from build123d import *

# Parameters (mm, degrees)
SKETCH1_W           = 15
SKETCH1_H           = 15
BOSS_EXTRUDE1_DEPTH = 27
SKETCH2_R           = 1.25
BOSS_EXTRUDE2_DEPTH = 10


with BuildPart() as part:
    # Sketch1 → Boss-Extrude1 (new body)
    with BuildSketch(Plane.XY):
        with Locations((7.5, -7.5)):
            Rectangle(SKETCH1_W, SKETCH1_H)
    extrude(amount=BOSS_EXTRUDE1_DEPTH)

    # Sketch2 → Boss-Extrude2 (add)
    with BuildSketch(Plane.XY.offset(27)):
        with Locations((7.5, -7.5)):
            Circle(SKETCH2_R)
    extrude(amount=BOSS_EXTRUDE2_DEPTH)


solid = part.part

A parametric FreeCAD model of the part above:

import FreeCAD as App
import Part
import Sketcher

V = App.Vector

doc = App.newDocument("Part")
params = doc.addObject("Spreadsheet::Sheet", "Params")
for row, (alias, value) in enumerate([
    ("sketch1_width", "15 mm"),
    ("pad1_length", "27 mm"),
    ("sketch2_diameter", "2.5 mm"),
    ("pad2_length", "10 mm"),
], start=1):
    params.set(f"A{row}", alias)
    params.set(f"B{row}", "=" + value)
    params.setAlias(f"B{row}", alias)

body = doc.addObject("PartDesign::Body", "Body")

sketch1 = body.newObject("Sketcher::SketchObject", "Sketch")
sketch1.AttachmentSupport = (doc.getObject("XY_Plane"), [""])
sketch1.MapMode = "FlatFace"
sketch1.addGeometry([
    Part.LineSegment(V(0, 0, 0), V(0, -15, 0)),
    Part.LineSegment(V(0, -15, 0), V(15, -15, 0)),
    Part.LineSegment(V(15, -15, 0), V(15, 0, 0)),
    Part.LineSegment(V(15, 0, 0), V(0, 0, 0)),
], False)
sketch1.addConstraint([
    Sketcher.Constraint("Coincident", 0, 2, 1, 1),
    Sketcher.Constraint("Coincident", 1, 2, 2, 1),
    Sketcher.Constraint("Coincident", 2, 2, 3, 1),
    Sketcher.Constraint("Coincident", 3, 2, 0, 1),
    Sketcher.Constraint("Vertical", 0),
    Sketcher.Constraint("Horizontal", 1),
    Sketcher.Constraint("Vertical", 2),
    Sketcher.Constraint("Horizontal", 3),
    Sketcher.Constraint("Coincident", 3, 2, -1, 1),
    Sketcher.Constraint("Equal", 3, 0),
    Sketcher.Constraint("DistanceX", 1, 1, 1, 2, 15.0),
])
sketch1.setExpression("Constraints[10]", "Params.sketch1_width")
pad1 = body.newObject("PartDesign::Pad", "Pad")
pad1.Profile = sketch1
pad1.setExpression("Length", "Params.pad1_length")

sketch2 = body.newObject("Sketcher::SketchObject", "Sketch001")
sketch2.AttachmentSupport = (doc.getObject("XY_Plane"), [""])
sketch2.MapMode = "FlatFace"
sketch2.AttachmentOffset = App.Placement(V(0, 0, 27), App.Rotation())
sketch2.addGeometry(Part.Circle(V(7.5, -7.5, 0), V(0, 0, 1), 1.25), False)
sketch2.addConstraint([
    Sketcher.Constraint("Diameter", 0, 2.5),
    Sketcher.Constraint("DistanceX", -1, 1, 0, 3, 7.5),
    Sketcher.Constraint("DistanceY", 0, 3, -1, 1, 7.5),
])
sketch2.setExpression("Constraints[0]", "Params.sketch2_diameter")
pad2 = body.newObject("PartDesign::Pad", "Pad001")
pad2.Profile = sketch2
pad2.setExpression("Length", "Params.pad2_length")

doc.recompute()
